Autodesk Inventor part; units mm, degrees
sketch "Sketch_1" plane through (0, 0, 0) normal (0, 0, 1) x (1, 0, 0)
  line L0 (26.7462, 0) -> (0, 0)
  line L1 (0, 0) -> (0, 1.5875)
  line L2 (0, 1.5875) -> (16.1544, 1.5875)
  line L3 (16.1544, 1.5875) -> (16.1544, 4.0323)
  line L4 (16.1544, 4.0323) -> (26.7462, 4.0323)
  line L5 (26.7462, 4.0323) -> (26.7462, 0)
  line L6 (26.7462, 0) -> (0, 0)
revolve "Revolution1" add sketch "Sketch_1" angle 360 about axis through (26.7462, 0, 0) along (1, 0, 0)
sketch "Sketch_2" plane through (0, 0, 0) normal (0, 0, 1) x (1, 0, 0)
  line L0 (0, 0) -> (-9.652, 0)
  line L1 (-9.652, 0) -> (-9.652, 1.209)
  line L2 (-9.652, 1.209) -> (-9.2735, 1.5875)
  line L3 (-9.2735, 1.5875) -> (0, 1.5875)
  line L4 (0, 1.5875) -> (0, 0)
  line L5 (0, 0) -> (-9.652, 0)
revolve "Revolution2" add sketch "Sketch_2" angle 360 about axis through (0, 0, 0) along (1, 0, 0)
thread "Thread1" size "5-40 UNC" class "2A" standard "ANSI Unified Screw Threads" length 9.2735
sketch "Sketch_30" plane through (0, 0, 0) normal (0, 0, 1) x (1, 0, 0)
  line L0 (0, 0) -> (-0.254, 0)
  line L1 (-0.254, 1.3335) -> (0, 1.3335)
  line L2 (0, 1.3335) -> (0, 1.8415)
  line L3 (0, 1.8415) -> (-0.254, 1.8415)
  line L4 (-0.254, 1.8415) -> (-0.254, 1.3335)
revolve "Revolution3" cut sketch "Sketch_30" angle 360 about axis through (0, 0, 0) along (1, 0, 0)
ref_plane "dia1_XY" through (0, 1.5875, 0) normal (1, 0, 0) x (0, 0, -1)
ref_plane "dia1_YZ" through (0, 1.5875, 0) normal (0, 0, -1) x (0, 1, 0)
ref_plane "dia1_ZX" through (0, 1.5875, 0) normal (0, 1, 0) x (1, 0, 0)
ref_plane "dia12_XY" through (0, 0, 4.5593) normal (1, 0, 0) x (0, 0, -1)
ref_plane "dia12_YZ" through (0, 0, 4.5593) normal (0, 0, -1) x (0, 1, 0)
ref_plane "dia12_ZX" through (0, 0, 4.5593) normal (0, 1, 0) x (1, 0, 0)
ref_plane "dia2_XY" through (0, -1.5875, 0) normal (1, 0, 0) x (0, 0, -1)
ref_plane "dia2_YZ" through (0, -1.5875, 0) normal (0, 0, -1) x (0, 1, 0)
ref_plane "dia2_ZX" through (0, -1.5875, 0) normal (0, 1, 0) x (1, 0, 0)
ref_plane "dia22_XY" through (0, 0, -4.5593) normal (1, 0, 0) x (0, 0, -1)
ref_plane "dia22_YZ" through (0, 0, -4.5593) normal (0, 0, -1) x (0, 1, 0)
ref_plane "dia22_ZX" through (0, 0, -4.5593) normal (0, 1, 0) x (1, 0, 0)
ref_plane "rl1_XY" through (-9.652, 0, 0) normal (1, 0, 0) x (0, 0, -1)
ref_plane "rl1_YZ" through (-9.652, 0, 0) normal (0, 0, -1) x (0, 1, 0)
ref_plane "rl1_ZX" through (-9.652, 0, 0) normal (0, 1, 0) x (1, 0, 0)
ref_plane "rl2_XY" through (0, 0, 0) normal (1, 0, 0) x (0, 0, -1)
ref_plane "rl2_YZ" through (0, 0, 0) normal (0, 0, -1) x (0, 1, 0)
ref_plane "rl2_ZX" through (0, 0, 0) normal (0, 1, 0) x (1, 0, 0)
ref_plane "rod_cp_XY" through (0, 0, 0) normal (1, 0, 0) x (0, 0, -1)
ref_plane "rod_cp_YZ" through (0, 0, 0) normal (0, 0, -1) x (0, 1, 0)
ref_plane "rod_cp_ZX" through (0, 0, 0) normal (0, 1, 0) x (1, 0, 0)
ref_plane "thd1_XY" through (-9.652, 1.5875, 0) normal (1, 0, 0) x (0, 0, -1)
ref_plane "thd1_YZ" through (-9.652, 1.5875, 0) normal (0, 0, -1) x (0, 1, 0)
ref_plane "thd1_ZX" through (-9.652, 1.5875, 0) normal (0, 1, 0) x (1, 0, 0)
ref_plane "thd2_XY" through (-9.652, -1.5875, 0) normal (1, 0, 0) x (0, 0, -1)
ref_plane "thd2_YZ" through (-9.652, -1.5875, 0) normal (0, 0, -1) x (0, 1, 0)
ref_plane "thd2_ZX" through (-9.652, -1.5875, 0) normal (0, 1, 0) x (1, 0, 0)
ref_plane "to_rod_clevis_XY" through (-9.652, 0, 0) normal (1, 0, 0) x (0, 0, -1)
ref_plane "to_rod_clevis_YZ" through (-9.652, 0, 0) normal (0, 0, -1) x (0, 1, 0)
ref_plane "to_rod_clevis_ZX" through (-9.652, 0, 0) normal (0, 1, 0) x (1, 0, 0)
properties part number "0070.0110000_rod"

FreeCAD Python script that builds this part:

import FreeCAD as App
import Part
import Sketcher
Q = App.Units.Quantity


def add_polygon(sketch, points):
    """Adds a closed chain of lines whose ends are joined by coincident constraints."""
    first, n = sketch.GeometryCount, len(points)
    for a, b in zip(points, points[1:] + points[:1]):
        sketch.addGeometry(Part.LineSegment(App.Vector(*a, 0), App.Vector(*b, 0)), False)
    for i in range(n):
        sketch.addConstraint(Sketcher.Constraint("Coincident", first + i, 2, first + (i + 1) % n, 1))

doc = App.newDocument("Part")
params = doc.addObject("Spreadsheet::Sheet", "Params")
for row, (alias, value) in enumerate([
    ("sketch1_width", "1.053 in"),
    ("sketch1_width2", "0.417 in"),
    ("sketch1_height", "0.0625 in"),
    ("revolution_angle", "360 deg"),
    ("sketch2_width", "0.38 in"),
    ("sketch2_height", "0.0625 in"),
    ("revolution2_angle", "360 deg"),
    ("sketch3_width", "0.01 in"),
    ("sketch3_height", "0.02 in"),
    ("groove_angle", "360 deg"),
], start=1):
    params.set(f"A{row}", alias)
    params.set(f"B{row}", "=" + value)
    params.setAlias(f"B{row}", alias)

body = doc.addObject("PartDesign::Body", "Body")

# Sketch on XY plane
sketch1 = body.newObject("Sketcher::SketchObject", "Sketch")
sketch1.AttachmentSupport = (doc.getObject("XY_Plane"), [""])
sketch1.MapMode = "FlatFace"
add_polygon(sketch1, [(0, 0), (26.7462, 0), (26.7462, 4.0323), (16.1544, 4.0323), (16.1544, 1.5875), (0, 1.5875)])  # lines 0-5
sketch1.addConstraint(Sketcher.Constraint("Horizontal", 0))
sketch1.addConstraint(Sketcher.Constraint("Vertical", 1))
sketch1.addConstraint(Sketcher.Constraint("Horizontal", 2))
sketch1.addConstraint(Sketcher.Constraint("Vertical", 3))
sketch1.addConstraint(Sketcher.Constraint("Horizontal", 4))
sketch1.addConstraint(Sketcher.Constraint("Vertical", 5))
sketch1.addConstraint(Sketcher.Constraint("Coincident", 5, 2, -1, 1))
sketch1.addConstraint(Sketcher.Constraint("DistanceX", 0, 1, 0, 2, Q("1.053 in")))
sketch1.addConstraint(Sketcher.Constraint("DistanceX", 2, 2, 2, 1, Q("0.417 in")))
sketch1.addConstraint(Sketcher.Constraint("DistanceY", 5, 2, 5, 1, Q("0.0625 in")))
sketch1.addConstraint(Sketcher.Constraint("DistanceY", 1, 1, 1, 2, 4.0323))
sketch1.setExpression("Constraints[13]", "Params.sketch1_width")
sketch1.setExpression("Constraints[14]", "Params.sketch1_width2")
sketch1.setExpression("Constraints[15]", "Params.sketch1_height")
revolution = body.newObject("PartDesign::Revolution", "Revolution")
revolution.Profile = sketch1
revolution.ReferenceAxis = (sketch1, ["H_Axis"])
revolution.setExpression("Angle", "Params.revolution_angle")

# Sketch on XY plane
sketch2 = body.newObject("Sketcher::SketchObject", "Sketch001")
sketch2.AttachmentSupport = (doc.getObject("XY_Plane"), [""])
sketch2.MapMode = "FlatFace"
add_polygon(sketch2, [(-9.652, 0), (0, 0), (0, 1.5875), (-9.2735, 1.5875), (-9.652, 1.209)])  # lines 0-4
sketch2.addConstraint(Sketcher.Constraint("Horizontal", 0))
sketch2.addConstraint(Sketcher.Constraint("Vertical", 1))
sketch2.addConstraint(Sketcher.Constraint("Horizontal", 2))
sketch2.addConstraint(Sketcher.Constraint("Vertical", 4))
sketch2.addConstraint(Sketcher.Constraint("Coincident", 0, 2, -1, 1))
sketch2.addConstraint(Sketcher.Constraint("Angle", 3, Q("-135 deg")))
sketch2.addConstraint(Sketcher.Constraint("DistanceX", 0, 1, 0, 2, Q("0.38 in")))
sketch2.addConstraint(Sketcher.Constraint("DistanceY", 1, 1, 1, 2, Q("0.0625 in")))
sketch2.addConstraint(Sketcher.Constraint("DistanceX", 2, 2, 2, 1, Q("0.3651 in")))
sketch2.setExpression("Constraints[11]", "Params.sketch2_width")
sketch2.setExpression("Constraints[12]", "Params.sketch2_height")
revolution2 = body.newObject("PartDesign::Revolution", "Revolution001")
revolution2.Profile = sketch2
revolution2.ReferenceAxis = (sketch2, ["H_Axis"])
revolution2.setExpression("Angle", "Params.revolution2_angle")

# Sketch on XY plane
sketch3 = body.newObject("Sketcher::SketchObject", "Sketch002")
sketch3.AttachmentSupport = (doc.getObject("XY_Plane"), [""])
sketch3.MapMode = "FlatFace"
add_polygon(sketch3, [(-0.254, 1.8415), (-0.254, 1.3335), (0, 1.3335), (0, 1.8415)])  # lines 0-3
sketch3.addConstraint(Sketcher.Constraint("Vertical", 0))
sketch3.addConstraint(Sketcher.Constraint("Horizontal", 1))
sketch3.addConstraint(Sketcher.Constraint("Vertical", 2))
sketch3.addConstraint(Sketcher.Constraint("Horizontal", 3))
sketch3.addConstraint(Sketcher.Constraint("PointOnObject", 1, 2, -2))
sketch3.addConstraint(Sketcher.Constraint("DistanceX", 1, 1, 1, 2, Q("0.01 in")))
sketch3.addConstraint(Sketcher.Constraint("DistanceY", 0, 2, 0, 1, Q("0.02 in")))
sketch3.addConstraint(Sketcher.Constraint("DistanceY", -1, 1, 0, 2, Q("0.0525 in")))
sketch3.setExpression("Constraints[9]", "Params.sketch3_width")
sketch3.setExpression("Constraints[10]", "Params.sketch3_height")
groove = body.newObject("PartDesign::Groove", "Groove")
groove.Profile = sketch3
groove.ReferenceAxis = (sketch3, ["H_Axis"])
groove.setExpression("Angle", "Params.groove_angle")

doc.recompute()
